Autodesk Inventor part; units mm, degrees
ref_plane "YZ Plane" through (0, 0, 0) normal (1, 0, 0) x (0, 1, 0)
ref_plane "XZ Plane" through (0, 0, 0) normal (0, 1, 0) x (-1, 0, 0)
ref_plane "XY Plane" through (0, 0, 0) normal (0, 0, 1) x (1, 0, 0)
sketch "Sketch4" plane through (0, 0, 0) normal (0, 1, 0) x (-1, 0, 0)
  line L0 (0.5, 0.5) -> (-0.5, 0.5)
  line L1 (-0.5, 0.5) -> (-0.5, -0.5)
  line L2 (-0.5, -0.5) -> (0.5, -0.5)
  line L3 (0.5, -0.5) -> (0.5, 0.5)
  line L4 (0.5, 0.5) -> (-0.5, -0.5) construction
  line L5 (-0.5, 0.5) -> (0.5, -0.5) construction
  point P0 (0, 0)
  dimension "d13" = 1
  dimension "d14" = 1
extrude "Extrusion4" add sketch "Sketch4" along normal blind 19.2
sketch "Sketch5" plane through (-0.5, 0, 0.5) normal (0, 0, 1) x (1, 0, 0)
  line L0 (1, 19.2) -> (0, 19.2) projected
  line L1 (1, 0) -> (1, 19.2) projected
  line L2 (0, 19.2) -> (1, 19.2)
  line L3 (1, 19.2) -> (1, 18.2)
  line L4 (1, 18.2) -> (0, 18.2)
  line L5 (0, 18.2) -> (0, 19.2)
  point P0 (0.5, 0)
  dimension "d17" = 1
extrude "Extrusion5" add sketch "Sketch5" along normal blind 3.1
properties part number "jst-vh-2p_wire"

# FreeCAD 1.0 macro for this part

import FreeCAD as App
import Part
import Sketcher
Q = App.Units.Quantity


def add_polygon(sketch, points):
    """Adds a closed chain of lines whose ends are joined by coincident constraints."""
    first, n = sketch.GeometryCount, len(points)
    for a, b in zip(points, points[1:] + points[:1]):
        sketch.addGeometry(Part.LineSegment(App.Vector(*a, 0), App.Vector(*b, 0)), False)
    for i in range(n):
        sketch.addConstraint(Sketcher.Constraint("Coincident", first + i, 2, first + (i + 1) % n, 1))

doc = App.newDocument("Part")
params = doc.addObject("Spreadsheet::Sheet", "Params")
for row, (alias, value) in enumerate([
    ("sketch1_width", "1 mm"),
    ("pad1_length", "19.2 mm"),
    ("sketch2_width", "1 mm"),
    ("pad2_length", "3.1 mm"),
], start=1):
    params.set(f"A{row}", alias)
    params.set(f"B{row}", "=" + value)
    params.setAlias(f"B{row}", alias)

body = doc.addObject("PartDesign::Body", "Body")

# Sketch on XZ plane
sketch1 = body.newObject("Sketcher::SketchObject", "Sketch")
sketch1.AttachmentSupport = (doc.getObject("XZ_Plane"), [""])
sketch1.MapMode = "FlatFace"
add_polygon(sketch1, [(-0.5, -0.5), (-0.5, 0.5), (0.5, 0.5), (0.5, -0.5)])  # lines 0-3
sketch1.addConstraint(Sketcher.Constraint("Vertical", 0))
sketch1.addConstraint(Sketcher.Constraint("Horizontal", 1))
sketch1.addConstraint(Sketcher.Constraint("Vertical", 2))
sketch1.addConstraint(Sketcher.Constraint("Horizontal", 3))
sketch1.addConstraint(Sketcher.Constraint("Symmetric", 0, 2, 2, 2, -1, 1))
sketch1.addConstraint(Sketcher.Constraint("Equal", 3, 0))
sketch1.addConstraint(Sketcher.Constraint("DistanceX", 1, 1, 1, 2, Q("1 mm")))
sketch1.setExpression("Constraints[10]", "Params.sketch1_width")
pad1 = body.newObject("PartDesign::Pad", "Pad")
pad1.Profile = sketch1
pad1.setExpression("Length", "Params.pad1_length")
pad1.Reversed = True

# Sketch on XY plane
sketch2 = body.newObject("Sketcher::SketchObject", "Sketch001")
sketch2.AttachmentSupport = (doc.getObject("XY_Plane"), [""])
sketch2.MapMode = "FlatFace"
sketch2.AttachmentOffset = App.Placement(App.Vector(0, 0, 0.5), App.Rotation())
add_polygon(sketch2, [(0.5, 18.2), (0.5, 19.2), (-0.5, 19.2), (-0.5, 18.2)])  # lines 0-3
sketch2.addConstraint(Sketcher.Constraint("Vertical", 0))
sketch2.addConstraint(Sketcher.Constraint("Horizontal", 1))
sketch2.addConstraint(Sketcher.Constraint("Vertical", 2))
sketch2.addConstraint(Sketcher.Constraint("Horizontal", 3))
sketch2.addConstraint(Sketcher.Constraint("Equal", 3, 0))
sketch2.addConstraint(Sketcher.Constraint("DistanceX", 1, 2, 1, 1, Q("1 mm")))
sketch2.addConstraint(Sketcher.Constraint("DistanceX", -1, 1, 0, 2, Q("0.5 mm")))
sketch2.addConstraint(Sketcher.Constraint("DistanceY", -1, 1, 0, 2, Q("19.2 mm")))
sketch2.setExpression("Constraints[9]", "Params.sketch2_width")
pad2 = body.newObject("PartDesign::Pad", "Pad001")
pad2.Profile = sketch2
pad2.setExpression("Length", "Params.pad2_length")

doc.recompute()
